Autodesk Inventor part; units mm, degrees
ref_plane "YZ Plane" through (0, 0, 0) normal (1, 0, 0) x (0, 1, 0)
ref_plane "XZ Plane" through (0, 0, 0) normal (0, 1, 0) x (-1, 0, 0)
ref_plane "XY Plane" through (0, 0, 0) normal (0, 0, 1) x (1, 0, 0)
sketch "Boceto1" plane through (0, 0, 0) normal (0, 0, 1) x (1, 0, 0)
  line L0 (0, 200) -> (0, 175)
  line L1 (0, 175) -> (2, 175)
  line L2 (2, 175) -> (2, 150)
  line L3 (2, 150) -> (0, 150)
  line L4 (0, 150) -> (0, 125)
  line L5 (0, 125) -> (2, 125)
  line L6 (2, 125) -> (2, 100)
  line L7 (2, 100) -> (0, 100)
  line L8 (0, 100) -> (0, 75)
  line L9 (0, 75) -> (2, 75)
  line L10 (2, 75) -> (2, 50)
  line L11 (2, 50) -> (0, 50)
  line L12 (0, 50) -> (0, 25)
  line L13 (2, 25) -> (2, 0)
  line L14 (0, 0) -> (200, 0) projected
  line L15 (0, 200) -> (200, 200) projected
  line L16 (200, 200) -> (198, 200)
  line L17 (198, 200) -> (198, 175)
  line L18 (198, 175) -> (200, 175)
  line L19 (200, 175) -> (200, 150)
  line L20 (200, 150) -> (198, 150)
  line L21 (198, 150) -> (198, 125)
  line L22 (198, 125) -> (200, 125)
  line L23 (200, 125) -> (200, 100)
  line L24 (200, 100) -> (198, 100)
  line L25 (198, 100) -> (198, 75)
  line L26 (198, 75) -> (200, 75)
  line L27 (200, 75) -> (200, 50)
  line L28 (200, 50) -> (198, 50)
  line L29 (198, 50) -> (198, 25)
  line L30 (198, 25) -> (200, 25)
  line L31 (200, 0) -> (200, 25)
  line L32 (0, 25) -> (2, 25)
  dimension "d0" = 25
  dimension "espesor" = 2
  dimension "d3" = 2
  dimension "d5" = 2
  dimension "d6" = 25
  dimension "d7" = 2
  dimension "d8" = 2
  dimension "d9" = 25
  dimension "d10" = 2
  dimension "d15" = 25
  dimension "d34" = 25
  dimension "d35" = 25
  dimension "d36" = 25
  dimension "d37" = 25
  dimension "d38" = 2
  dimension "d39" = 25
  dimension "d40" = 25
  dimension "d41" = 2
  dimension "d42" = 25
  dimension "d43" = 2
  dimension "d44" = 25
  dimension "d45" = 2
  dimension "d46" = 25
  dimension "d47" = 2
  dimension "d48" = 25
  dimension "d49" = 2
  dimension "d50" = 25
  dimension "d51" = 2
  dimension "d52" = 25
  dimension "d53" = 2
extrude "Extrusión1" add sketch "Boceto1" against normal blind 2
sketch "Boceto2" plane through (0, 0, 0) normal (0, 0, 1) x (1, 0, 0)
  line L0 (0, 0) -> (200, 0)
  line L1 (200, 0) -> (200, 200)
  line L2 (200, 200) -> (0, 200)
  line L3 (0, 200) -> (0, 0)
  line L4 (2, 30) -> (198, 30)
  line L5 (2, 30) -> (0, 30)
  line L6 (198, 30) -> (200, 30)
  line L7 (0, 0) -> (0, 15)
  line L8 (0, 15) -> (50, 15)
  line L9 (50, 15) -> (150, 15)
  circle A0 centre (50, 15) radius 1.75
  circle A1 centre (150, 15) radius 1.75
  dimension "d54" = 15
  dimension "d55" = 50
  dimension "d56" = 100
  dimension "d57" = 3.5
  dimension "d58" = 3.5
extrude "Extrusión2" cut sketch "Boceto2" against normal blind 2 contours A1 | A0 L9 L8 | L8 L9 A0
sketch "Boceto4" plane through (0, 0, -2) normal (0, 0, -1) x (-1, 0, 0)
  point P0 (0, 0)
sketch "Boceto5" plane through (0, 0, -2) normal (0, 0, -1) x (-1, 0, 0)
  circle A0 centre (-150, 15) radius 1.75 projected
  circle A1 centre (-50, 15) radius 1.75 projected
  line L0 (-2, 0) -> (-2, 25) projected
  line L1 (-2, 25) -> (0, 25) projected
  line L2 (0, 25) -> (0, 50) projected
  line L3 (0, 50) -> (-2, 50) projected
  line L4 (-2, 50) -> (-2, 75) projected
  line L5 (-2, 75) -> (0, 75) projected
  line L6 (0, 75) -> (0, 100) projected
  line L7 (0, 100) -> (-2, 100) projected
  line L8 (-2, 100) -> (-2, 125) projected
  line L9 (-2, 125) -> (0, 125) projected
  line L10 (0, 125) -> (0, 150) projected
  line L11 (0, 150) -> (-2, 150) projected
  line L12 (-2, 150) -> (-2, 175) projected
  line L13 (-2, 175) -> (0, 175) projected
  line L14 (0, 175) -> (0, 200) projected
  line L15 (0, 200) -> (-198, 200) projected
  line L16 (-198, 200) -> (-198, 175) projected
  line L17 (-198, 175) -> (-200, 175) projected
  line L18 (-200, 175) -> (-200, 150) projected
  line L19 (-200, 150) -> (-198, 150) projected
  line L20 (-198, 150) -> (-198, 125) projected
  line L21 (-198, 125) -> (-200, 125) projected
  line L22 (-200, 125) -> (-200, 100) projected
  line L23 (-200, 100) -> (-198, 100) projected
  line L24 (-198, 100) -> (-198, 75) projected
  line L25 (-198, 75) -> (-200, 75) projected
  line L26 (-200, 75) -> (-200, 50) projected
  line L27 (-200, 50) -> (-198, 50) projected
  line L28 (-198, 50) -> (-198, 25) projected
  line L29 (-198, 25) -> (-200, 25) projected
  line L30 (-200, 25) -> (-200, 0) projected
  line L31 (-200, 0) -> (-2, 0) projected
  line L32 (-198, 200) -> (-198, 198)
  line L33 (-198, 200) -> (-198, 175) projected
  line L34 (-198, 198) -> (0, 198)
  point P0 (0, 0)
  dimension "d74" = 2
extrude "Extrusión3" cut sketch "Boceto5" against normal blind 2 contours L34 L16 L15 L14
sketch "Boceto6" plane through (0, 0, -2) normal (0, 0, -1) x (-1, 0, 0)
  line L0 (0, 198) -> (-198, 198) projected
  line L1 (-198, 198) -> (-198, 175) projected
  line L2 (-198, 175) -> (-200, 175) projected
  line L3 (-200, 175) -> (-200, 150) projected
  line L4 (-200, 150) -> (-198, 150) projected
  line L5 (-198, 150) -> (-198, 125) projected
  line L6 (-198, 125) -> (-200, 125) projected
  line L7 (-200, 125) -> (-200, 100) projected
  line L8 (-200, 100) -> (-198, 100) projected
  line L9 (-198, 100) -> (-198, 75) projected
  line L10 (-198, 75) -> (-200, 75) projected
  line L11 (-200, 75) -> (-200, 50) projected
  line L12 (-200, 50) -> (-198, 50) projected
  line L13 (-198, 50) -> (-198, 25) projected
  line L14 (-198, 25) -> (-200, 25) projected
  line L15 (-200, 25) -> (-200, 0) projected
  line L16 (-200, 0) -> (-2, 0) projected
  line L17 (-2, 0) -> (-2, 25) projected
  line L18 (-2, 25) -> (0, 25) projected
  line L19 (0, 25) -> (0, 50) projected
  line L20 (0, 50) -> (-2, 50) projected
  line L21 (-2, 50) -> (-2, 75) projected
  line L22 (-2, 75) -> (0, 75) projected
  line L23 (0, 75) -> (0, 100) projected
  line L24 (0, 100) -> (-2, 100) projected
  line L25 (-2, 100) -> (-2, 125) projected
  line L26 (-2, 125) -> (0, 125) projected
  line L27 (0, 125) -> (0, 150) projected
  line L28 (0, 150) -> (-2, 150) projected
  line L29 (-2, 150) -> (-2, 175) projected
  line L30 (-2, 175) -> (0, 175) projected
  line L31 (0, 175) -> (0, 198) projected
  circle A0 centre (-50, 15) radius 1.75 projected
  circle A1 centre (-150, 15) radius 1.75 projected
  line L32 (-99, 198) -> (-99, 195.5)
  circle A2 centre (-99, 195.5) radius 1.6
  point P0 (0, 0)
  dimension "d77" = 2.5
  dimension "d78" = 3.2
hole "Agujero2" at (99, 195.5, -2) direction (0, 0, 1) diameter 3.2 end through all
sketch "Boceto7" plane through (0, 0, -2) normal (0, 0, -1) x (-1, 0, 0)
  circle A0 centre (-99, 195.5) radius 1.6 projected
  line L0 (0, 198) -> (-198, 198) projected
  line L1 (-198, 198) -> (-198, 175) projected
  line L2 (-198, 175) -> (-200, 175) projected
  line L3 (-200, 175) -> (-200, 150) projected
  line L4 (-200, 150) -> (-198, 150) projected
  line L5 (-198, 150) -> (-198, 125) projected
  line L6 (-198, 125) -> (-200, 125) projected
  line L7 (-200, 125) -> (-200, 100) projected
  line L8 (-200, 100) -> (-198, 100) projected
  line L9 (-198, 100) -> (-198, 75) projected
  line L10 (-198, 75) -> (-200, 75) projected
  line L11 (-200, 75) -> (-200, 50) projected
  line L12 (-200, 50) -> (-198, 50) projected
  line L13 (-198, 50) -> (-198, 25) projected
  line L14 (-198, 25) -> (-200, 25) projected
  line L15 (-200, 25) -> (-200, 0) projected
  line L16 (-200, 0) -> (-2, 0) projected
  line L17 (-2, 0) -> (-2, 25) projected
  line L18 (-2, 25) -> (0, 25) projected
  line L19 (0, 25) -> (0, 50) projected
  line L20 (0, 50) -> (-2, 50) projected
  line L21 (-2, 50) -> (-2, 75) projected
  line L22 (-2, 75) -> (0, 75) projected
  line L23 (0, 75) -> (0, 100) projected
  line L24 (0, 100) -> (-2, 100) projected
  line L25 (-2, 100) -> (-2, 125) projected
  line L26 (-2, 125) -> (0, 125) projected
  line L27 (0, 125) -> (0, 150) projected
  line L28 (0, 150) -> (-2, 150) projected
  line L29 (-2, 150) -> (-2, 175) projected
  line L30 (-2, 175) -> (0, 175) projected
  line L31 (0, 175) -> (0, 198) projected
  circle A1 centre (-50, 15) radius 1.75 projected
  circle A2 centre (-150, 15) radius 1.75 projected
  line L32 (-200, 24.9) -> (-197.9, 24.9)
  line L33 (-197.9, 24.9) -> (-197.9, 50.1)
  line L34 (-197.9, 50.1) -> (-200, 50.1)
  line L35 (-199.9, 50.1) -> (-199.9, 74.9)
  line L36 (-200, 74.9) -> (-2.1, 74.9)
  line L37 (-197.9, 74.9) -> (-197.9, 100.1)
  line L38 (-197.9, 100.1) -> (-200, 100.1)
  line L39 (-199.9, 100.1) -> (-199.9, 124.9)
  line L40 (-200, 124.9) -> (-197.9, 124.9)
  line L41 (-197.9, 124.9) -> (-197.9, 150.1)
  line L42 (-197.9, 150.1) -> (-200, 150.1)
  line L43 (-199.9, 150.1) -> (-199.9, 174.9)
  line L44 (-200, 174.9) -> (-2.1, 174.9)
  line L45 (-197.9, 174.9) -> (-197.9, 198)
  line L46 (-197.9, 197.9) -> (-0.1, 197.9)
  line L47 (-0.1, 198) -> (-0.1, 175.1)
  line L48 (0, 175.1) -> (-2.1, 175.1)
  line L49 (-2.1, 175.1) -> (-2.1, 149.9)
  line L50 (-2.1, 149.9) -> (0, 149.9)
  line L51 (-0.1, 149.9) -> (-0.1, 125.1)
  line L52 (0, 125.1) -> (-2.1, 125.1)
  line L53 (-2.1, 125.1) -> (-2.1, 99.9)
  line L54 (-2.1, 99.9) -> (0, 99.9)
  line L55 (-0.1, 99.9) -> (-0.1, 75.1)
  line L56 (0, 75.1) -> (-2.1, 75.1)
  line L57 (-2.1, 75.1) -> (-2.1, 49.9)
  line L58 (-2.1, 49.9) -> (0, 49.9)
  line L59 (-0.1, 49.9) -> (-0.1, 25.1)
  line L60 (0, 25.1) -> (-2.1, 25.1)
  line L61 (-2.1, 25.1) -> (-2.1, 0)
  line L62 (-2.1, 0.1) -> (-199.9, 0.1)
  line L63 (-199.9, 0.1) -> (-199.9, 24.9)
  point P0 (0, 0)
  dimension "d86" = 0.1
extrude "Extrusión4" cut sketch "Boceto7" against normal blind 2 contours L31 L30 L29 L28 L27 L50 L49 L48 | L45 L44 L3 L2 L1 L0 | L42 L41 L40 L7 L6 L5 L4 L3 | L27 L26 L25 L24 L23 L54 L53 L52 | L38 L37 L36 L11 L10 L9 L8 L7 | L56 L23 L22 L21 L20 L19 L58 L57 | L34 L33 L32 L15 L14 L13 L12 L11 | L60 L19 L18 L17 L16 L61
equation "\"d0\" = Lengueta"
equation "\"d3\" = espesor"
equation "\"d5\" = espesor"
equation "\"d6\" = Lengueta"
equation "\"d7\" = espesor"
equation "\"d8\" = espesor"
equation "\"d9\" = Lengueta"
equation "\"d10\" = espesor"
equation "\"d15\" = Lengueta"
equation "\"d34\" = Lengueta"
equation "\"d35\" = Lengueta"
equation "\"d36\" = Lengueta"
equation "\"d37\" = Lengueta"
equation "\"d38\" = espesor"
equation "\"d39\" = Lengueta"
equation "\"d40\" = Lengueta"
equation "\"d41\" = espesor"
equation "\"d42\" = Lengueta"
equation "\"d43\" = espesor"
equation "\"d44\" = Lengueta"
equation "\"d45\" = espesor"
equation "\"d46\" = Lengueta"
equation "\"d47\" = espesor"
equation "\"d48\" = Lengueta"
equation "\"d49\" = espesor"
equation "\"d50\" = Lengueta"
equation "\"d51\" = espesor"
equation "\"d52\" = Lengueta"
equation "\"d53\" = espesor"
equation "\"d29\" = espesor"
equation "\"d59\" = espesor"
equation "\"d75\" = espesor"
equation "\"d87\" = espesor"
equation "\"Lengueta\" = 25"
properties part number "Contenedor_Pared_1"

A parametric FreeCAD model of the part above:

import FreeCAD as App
import Part
import Sketcher

doc = App.newDocument("Part")
body = doc.addObject("PartDesign::Body", "Body")

# Sketch on XY plane
sketch1 = doc.addObject("Sketcher::SketchObject", "Sketch")
body.addObject(sketch1)
sketch1.AttachmentSupport = (doc.XY_Plane, [""])
sketch1.MapMode = "FlatFace"
sketch1.addGeometry(Part.LineSegment(App.Vector(198, 200, 0), App.Vector(0, 200, 0)), False)
sketch1.addGeometry(Part.LineSegment(App.Vector(0, 200, 0), App.Vector(0, 175, 0)), False)
sketch1.addGeometry(Part.LineSegment(App.Vector(0, 175, 0), App.Vector(2, 175, 0)), False)
sketch1.addGeometry(Part.LineSegment(App.Vector(2, 175, 0), App.Vector(2, 150, 0)), False)
sketch1.addGeometry(Part.LineSegment(App.Vector(2, 150, 0), App.Vector(0, 150, 0)), False)
sketch1.addGeometry(Part.LineSegment(App.Vector(0, 150, 0), App.Vector(0, 125, 0)), False)
sketch1.addGeometry(Part.LineSegment(App.Vector(0, 125, 0), App.Vector(2, 125, 0)), False)
sketch1.addGeometry(Part.LineSegment(App.Vector(2, 125, 0), App.Vector(2, 100, 0)), False)
sketch1.addGeometry(Part.LineSegment(App.Vector(2, 100, 0), App.Vector(0, 100, 0)), False)
sketch1.addGeometry(Part.LineSegment(App.Vector(0, 100, 0), App.Vector(0, 75, 0)), False)
sketch1.addGeometry(Part.LineSegment(App.Vector(0, 75, 0), App.Vector(2, 75, 0)), False)
sketch1.addGeometry(Part.LineSegment(App.Vector(2, 75, 0), App.Vector(2, 50, 0)), False)
sketch1.addGeometry(Part.LineSegment(App.Vector(2, 50, 0), App.Vector(0, 50, 0)), False)
sketch1.addGeometry(Part.LineSegment(App.Vector(0, 50, 0), App.Vector(0, 25, 0)), False)
sketch1.addGeometry(Part.LineSegment(App.Vector(0, 25, 0), App.Vector(2, 25, 0)), False)
sketch1.addGeometry(Part.LineSegment(App.Vector(2, 25, 0), App.Vector(2, 0, 0)), False)
sketch1.addGeometry(Part.LineSegment(App.Vector(2, 0, 0), App.Vector(200, 0, 0)), False)
sketch1.addGeometry(Part.LineSegment(App.Vector(200, 0, 0), App.Vector(200, 25, 0)), False)
sketch1.addGeometry(Part.LineSegment(App.Vector(200, 25, 0), App.Vector(198, 25, 0)), False)
sketch1.addGeometry(Part.LineSegment(App.Vector(198, 25, 0), App.Vector(198, 50, 0)), False)
sketch1.addGeometry(Part.LineSegment(App.Vector(198, 50, 0), App.Vector(200, 50, 0)), False)
sketch1.addGeometry(Part.LineSegment(App.Vector(200, 50, 0), App.Vector(200, 75, 0)), False)
sketch1.addGeometry(Part.LineSegment(App.Vector(200, 75, 0), App.Vector(198, 75, 0)), False)
sketch1.addGeometry(Part.LineSegment(App.Vector(198, 75, 0), App.Vector(198, 100, 0)), False)
sketch1.addGeometry(Part.LineSegment(App.Vector(198, 100, 0), App.Vector(200, 100, 0)), False)
sketch1.addGeometry(Part.LineSegment(App.Vector(200, 100, 0), App.Vector(200, 125, 0)), False)
sketch1.addGeometry(Part.LineSegment(App.Vector(200, 125, 0), App.Vector(198, 125, 0)), False)
sketch1.addGeometry(Part.LineSegment(App.Vector(198, 125, 0), App.Vector(198, 150, 0)), False)
sketch1.addGeometry(Part.LineSegment(App.Vector(198, 150, 0), App.Vector(200, 150, 0)), False)
sketch1.addGeometry(Part.LineSegment(App.Vector(200, 150, 0), App.Vector(200, 175, 0)), False)
sketch1.addGeometry(Part.LineSegment(App.Vector(200, 175, 0), App.Vector(198, 175, 0)), False)
sketch1.addGeometry(Part.LineSegment(App.Vector(198, 175, 0), App.Vector(198, 200, 0)), False)
sketch1.addConstraint(Sketcher.Constraint("Coincident", 0, 2, 1, 1))
sketch1.addConstraint(Sketcher.Constraint("Coincident", 1, 2, 2, 1))
sketch1.addConstraint(Sketcher.Constraint("Coincident", 2, 2, 3, 1))
sketch1.addConstraint(Sketcher.Constraint("Coincident", 3, 2, 4, 1))
sketch1.addConstraint(Sketcher.Constraint("Coincident", 4, 2, 5, 1))
sketch1.addConstraint(Sketcher.Constraint("Coincident", 5, 2, 6, 1))
sketch1.addConstraint(Sketcher.Constraint("Coincident", 6, 2, 7, 1))
sketch1.addConstraint(Sketcher.Constraint("Coincident", 7, 2, 8, 1))
sketch1.addConstraint(Sketcher.Constraint("Coincident", 8, 2, 9, 1))
sketch1.addConstraint(Sketcher.Constraint("Coincident", 9, 2, 10, 1))
sketch1.addConstraint(Sketcher.Constraint("Coincident", 10, 2, 11, 1))
sketch1.addConstraint(Sketcher.Constraint("Coincident", 11, 2, 12, 1))
sketch1.addConstraint(Sketcher.Constraint("Coincident", 12, 2, 13, 1))
sketch1.addConstraint(Sketcher.Constraint("Coincident", 13, 2, 14, 1))
sketch1.addConstraint(Sketcher.Constraint("Coincident", 14, 2, 15, 1))
sketch1.addConstraint(Sketcher.Constraint("Coincident", 15, 2, 16, 1))
sketch1.addConstraint(Sketcher.Constraint("Coincident", 16, 2, 17, 1))
sketch1.addConstraint(Sketcher.Constraint("Coincident", 17, 2, 18, 1))
sketch1.addConstraint(Sketcher.Constraint("Coincident", 18, 2, 19, 1))
sketch1.addConstraint(Sketcher.Constraint("Coincident", 19, 2, 20, 1))
sketch1.addConstraint(Sketcher.Constraint("Coincident", 20, 2, 21, 1))
sketch1.addConstraint(Sketcher.Constraint("Coincident", 21, 2, 22, 1))
sketch1.addConstraint(Sketcher.Constraint("Coincident", 22, 2, 23, 1))
sketch1.addConstraint(Sketcher.Constraint("Coincident", 23, 2, 24, 1))
sketch1.addConstraint(Sketcher.Constraint("Coincident", 24, 2, 25, 1))
sketch1.addConstraint(Sketcher.Constraint("Coincident", 25, 2, 26, 1))
sketch1.addConstraint(Sketcher.Constraint("Coincident", 26, 2, 27, 1))
sketch1.addConstraint(Sketcher.Constraint("Coincident", 27, 2, 28, 1))
sketch1.addConstraint(Sketcher.Constraint("Coincident", 28, 2, 29, 1))
sketch1.addConstraint(Sketcher.Constraint("Coincident", 29, 2, 30, 1))
sketch1.addConstraint(Sketcher.Constraint("Coincident", 30, 2, 31, 1))
sketch1.addConstraint(Sketcher.Constraint("Coincident", 31, 2, 0, 1))
sketch1.addConstraint(Sketcher.Constraint("Horizontal", 0))
sketch1.addConstraint(Sketcher.Constraint("Vertical", 1))
sketch1.addConstraint(Sketcher.Constraint("Horizontal", 2))
sketch1.addConstraint(Sketcher.Constraint("Vertical", 3))
sketch1.addConstraint(Sketcher.Constraint("Horizontal", 4))
sketch1.addConstraint(Sketcher.Constraint("Vertical", 5))
sketch1.addConstraint(Sketcher.Constraint("Horizontal", 6))
sketch1.addConstraint(Sketcher.Constraint("Vertical", 7))
sketch1.addConstraint(Sketcher.Constraint("Horizontal", 8))
sketch1.addConstraint(Sketcher.Constraint("Vertical", 9))
sketch1.addConstraint(Sketcher.Constraint("Horizontal", 10))
sketch1.addConstraint(Sketcher.Constraint("Vertical", 11))
sketch1.addConstraint(Sketcher.Constraint("Horizontal", 12))
sketch1.addConstraint(Sketcher.Constraint("Vertical", 13))
sketch1.addConstraint(Sketcher.Constraint("Horizontal", 14))
sketch1.addConstraint(Sketcher.Constraint("Vertical", 15))
sketch1.addConstraint(Sketcher.Constraint("Horizontal", 16))
sketch1.addConstraint(Sketcher.Constraint("Vertical", 17))
sketch1.addConstraint(Sketcher.Constraint("Horizontal", 18))
sketch1.addConstraint(Sketcher.Constraint("Vertical", 19))
sketch1.addConstraint(Sketcher.Constraint("Horizontal", 20))
sketch1.addConstraint(Sketcher.Constraint("Vertical", 21))
sketch1.addConstraint(Sketcher.Constraint("Horizontal", 22))
sketch1.addConstraint(Sketcher.Constraint("Vertical", 23))
sketch1.addConstraint(Sketcher.Constraint("Horizontal", 24))
sketch1.addConstraint(Sketcher.Constraint("Vertical", 25))
sketch1.addConstraint(Sketcher.Constraint("Horizontal", 26))
sketch1.addConstraint(Sketcher.Constraint("Vertical", 27))
sketch1.addConstraint(Sketcher.Constraint("Horizontal", 28))
sketch1.addConstraint(Sketcher.Constraint("Vertical", 29))
sketch1.addConstraint(Sketcher.Constraint("Horizontal", 30))
sketch1.addConstraint(Sketcher.Constraint("Vertical", 31))
sketch1.addConstraint(Sketcher.Constraint("PointOnObject", 0, 2, -2))
sketch1.addConstraint(Sketcher.Constraint("PointOnObject", 4, 2, -2))
sketch1.addConstraint(Sketcher.Constraint("PointOnObject", 8, 2, -2))
sketch1.addConstraint(Sketcher.Constraint("PointOnObject", 12, 2, -2))
sketch1.addConstraint(Sketcher.Constraint("PointOnObject", 15, 2, -1))
sketch1.addConstraint(Sketcher.Constraint("Horizontal", 14, 2, 17, 2))
sketch1.addConstraint(Sketcher.Constraint("Horizontal", 12, 2, 19, 2))
sketch1.addConstraint(Sketcher.Constraint("Horizontal", 10, 2, 21, 2))
sketch1.addConstraint(Sketcher.Constraint("Horizontal", 8, 2, 23, 2))
sketch1.addConstraint(Sketcher.Constraint("Horizontal", 6, 2, 25, 2))
sketch1.addConstraint(Sketcher.Constraint("Horizontal", 4, 2, 27, 2))
sketch1.addConstraint(Sketcher.Constraint("Horizontal", 2, 2, 29, 2))
sketch1.addConstraint(Sketcher.Constraint("Vertical", 3, 2, 6, 2))
sketch1.addConstraint(Sketcher.Constraint("Vertical", 7, 2, 10, 2))
sketch1.addConstraint(Sketcher.Constraint("Vertical", 11, 2, 14, 2))
sketch1.addConstraint(Sketcher.Constraint("Vertical", 17, 2, 20, 2))
sketch1.addConstraint(Sketcher.Constraint("Vertical", 19, 2, 22, 2))
sketch1.addConstraint(Sketcher.Constraint("Vertical", 21, 2, 24, 2))
sketch1.addConstraint(Sketcher.Constraint("Vertical", 23, 2, 26, 2))
sketch1.addConstraint(Sketcher.Constraint("Vertical", 25, 2, 28, 2))
sketch1.addConstraint(Sketcher.Constraint("Vertical", 27, 2, 30, 2))
sketch1.addConstraint(Sketcher.Constraint("Equal", 0, 16))
sketch1.addConstraint(Sketcher.Constraint("Equal", 1, 3))
sketch1.addConstraint(Sketcher.Constraint("Equal", 3, 5))
sketch1.addConstraint(Sketcher.Constraint("Equal", 5, 7))
sketch1.addConstraint(Sketcher.Constraint("Equal", 7, 9))
sketch1.addConstraint(Sketcher.Constraint("Equal", 9, 11))
sketch1.addConstraint(Sketcher.Constraint("Equal", 11, 13))
sketch1.addConstraint(Sketcher.Constraint("Equal", 13, 15))
sketch1.addConstraint(Sketcher.Constraint("DistanceX", 2, 1, 2, 2, 2.0))
sketch1.addConstraint(Sketcher.Constraint("DistanceY", 1, 2, 1, 1, 25.0))
sketch1.addConstraint(Sketcher.Constraint("DistanceX", 0, 2, 0, 1, 198.0))
pad1 = doc.addObject("PartDesign::Pad", "Pad")
body.addObject(pad1)
pad1.Profile = sketch1
pad1.Length = 2
pad1.Reversed = True

# Sketch on XY plane
sketch2 = doc.addObject("Sketcher::SketchObject", "Sketch001")
body.addObject(sketch2)
sketch2.AttachmentSupport = (doc.XY_Plane, [""])
sketch2.MapMode = "FlatFace"
sketch2.addGeometry(Part.Circle(App.Vector(150, 15, 0), App.Vector(0, 0, 1), 1.75), False)
sketch2.addGeometry(Part.Circle(App.Vector(50, 15, 0), App.Vector(0, 0, 1), 1.75), False)
sketch2.addConstraint(Sketcher.Constraint("Equal", 0, 1))
sketch2.addConstraint(Sketcher.Constraint("Horizontal", 0, 3, 1, 3))
sketch2.addConstraint(Sketcher.Constraint("Diameter", 0, 3.5))
sketch2.addConstraint(Sketcher.Constraint("DistanceY", -1, 1, 0, 3, 15.0))
sketch2.addConstraint(Sketcher.Constraint("DistanceX", -1, 1, 1, 3, 50.0))
sketch2.addConstraint(Sketcher.Constraint("DistanceX", 1, 3, 0, 3, 100.0))
pocket1 = doc.addObject("PartDesign::Pocket", "Pocket")
body.addObject(pocket1)
pocket1.Profile = sketch2
pocket1.Length = 2

# Sketch on XY plane
sketch3 = doc.addObject("Sketcher::SketchObject", "Sketch002")
body.addObject(sketch3)
sketch3.AttachmentSupport = (doc.XY_Plane, [""])
sketch3.MapMode = "FlatFace"
sketch3.AttachmentOffset = App.Placement(App.Vector(0, 0, -2), App.Rotation())
sketch3.addGeometry(Part.LineSegment(App.Vector(198, 198, 0), App.Vector(0, 198, 0)), False)
sketch3.addGeometry(Part.LineSegment(App.Vector(0, 198, 0), App.Vector(0, 200, 0)), False)
sketch3.addGeometry(Part.LineSegment(App.Vector(0, 200, 0), App.Vector(198, 200, 0)), False)
sketch3.addGeometry(Part.LineSegment(App.Vector(198, 200, 0), App.Vector(198, 198, 0)), False)
sketch3.addConstraint(Sketcher.Constraint("Coincident", 0, 2, 1, 1))
sketch3.addConstraint(Sketcher.Constraint("Coincident", 1, 2, 2, 1))
sketch3.addConstraint(Sketcher.Constraint("Coincident", 2, 2, 3, 1))
sketch3.addConstraint(Sketcher.Constraint("Coincident", 3, 2, 0, 1))
sketch3.addConstraint(Sketcher.Constraint("Horizontal", 0))
sketch3.addConstraint(Sketcher.Constraint("Vertical", 1))
sketch3.addConstraint(Sketcher.Constraint("Horizontal", 2))
sketch3.addConstraint(Sketcher.Constraint("Vertical", 3))
sketch3.addConstraint(Sketcher.Constraint("PointOnObject", 0, 2, -2))
sketch3.addConstraint(Sketcher.Constraint("DistanceY", 1, 1, 1, 2, 2.0))
sketch3.addConstraint(Sketcher.Constraint("DistanceX", 0, 2, 0, 1, 198.0))
sketch3.addConstraint(Sketcher.Constraint("DistanceY", -1, 1, 0, 2, 198.0))
pocket2 = doc.addObject("PartDesign::Pocket", "Pocket001")
body.addObject(pocket2)
pocket2.Profile = sketch3
pocket2.Length = 2
pocket2.Reversed = True

# Sketch on XY plane
sketch4 = doc.addObject("Sketcher::SketchObject", "Sketch003")
body.addObject(sketch4)
sketch4.AttachmentSupport = (doc.XY_Plane, [""])
sketch4.MapMode = "FlatFace"
sketch4.AttachmentOffset = App.Placement(App.Vector(0, 0, -2), App.Rotation())
sketch4.addGeometry(Part.Circle(App.Vector(99, 195.5, 0), App.Vector(0, 0, 1), 1.6), False)
sketch4.addConstraint(Sketcher.Constraint("Diameter", 0, 3.2))
sketch4.addConstraint(Sketcher.Constraint("DistanceX", -1, 1, 0, 3, 99.0))
sketch4.addConstraint(Sketcher.Constraint("DistanceY", -1, 1, 0, 3, 195.5))
doc.recompute()
hole = doc.addObject("PartDesign::Hole", "Hole")
body.addObject(hole)
hole.Profile = sketch4
hole.ThreadType = "None"
hole.Diameter = 3.2
hole.DepthType = "ThroughAll"
hole.Reversed = True

# Sketch on XY plane
sketch5 = doc.addObject("Sketcher::SketchObject", "Sketch004")
body.addObject(sketch5)
sketch5.AttachmentSupport = (doc.XY_Plane, [""])
sketch5.MapMode = "FlatFace"
sketch5.AttachmentOffset = App.Placement(App.Vector(0, 0, -2), App.Rotation())
sketch5.addGeometry(Part.LineSegment(App.Vector(0, 175, 0), App.Vector(0, 175.1, 0)), False)
sketch5.addGeometry(Part.LineSegment(App.Vector(0, 175.1, 0), App.Vector(2.1, 175.1, 0)), False)
sketch5.addGeometry(Part.LineSegment(App.Vector(2.1, 175.1, 0), App.Vector(2.1, 149.9, 0)), False)
sketch5.addGeometry(Part.LineSegment(App.Vector(2.1, 149.9, 0), App.Vector(0, 149.9, 0)), False)
sketch5.addGeometry(Part.LineSegment(App.Vector(0, 149.9, 0), App.Vector(0, 150, 0)), False)
sketch5.addGeometry(Part.LineSegment(App.Vector(0, 150, 0), App.Vector(2, 150, 0)), False)
sketch5.addGeometry(Part.LineSegment(App.Vector(2, 150, 0), App.Vector(2, 175, 0)), False)
sketch5.addGeometry(Part.LineSegment(App.Vector(2, 175, 0), App.Vector(0, 175, 0)), False)
sketch5.addGeometry(Part.LineSegment(App.Vector(197.9, 174.9, 0), App.Vector(197.9, 198, 0)), False)
sketch5.addGeometry(Part.LineSegment(App.Vector(197.9, 198, 0), App.Vector(198, 198, 0)), False)
sketch5.addGeometry(Part.LineSegment(App.Vector(198, 198, 0), App.Vector(198, 175, 0)), False)
sketch5.addGeometry(Part.LineSegment(App.Vector(198, 175, 0), App.Vector(200, 175, 0)), False)
sketch5.addGeometry(Part.LineSegment(App.Vector(200, 175, 0), App.Vector(200, 174.9, 0)), False)
sketch5.addGeometry(Part.LineSegment(App.Vector(200, 174.9, 0), App.Vector(197.9, 174.9, 0)), False)
sketch5.addGeometry(Part.LineSegment(App.Vector(197.9, 150.1, 0), App.Vector(200, 150.1, 0)), False)
sketch5.addGeometry(Part.LineSegment(App.Vector(200, 150.1, 0), App.Vector(200, 150, 0)), False)
sketch5.addGeometry(Part.LineSegment(App.Vector(200, 150, 0), App.Vector(198, 150, 0)), False)
sketch5.addGeometry(Part.LineSegment(App.Vector(198, 150, 0), App.Vector(198, 125, 0)), False)
sketch5.addGeometry(Part.LineSegment(App.Vector(198, 125, 0), App.Vector(200, 125, 0)), False)
sketch5.addGeometry(Part.LineSegment(App.Vector(200, 125, 0), App.Vector(200, 124.9, 0)), False)
sketch5.addGeometry(Part.LineSegment(App.Vector(200, 124.9, 0), App.Vector(197.9, 124.9, 0)), False)
sketch5.addGeometry(Part.LineSegment(App.Vector(197.9, 124.9, 0), App.Vector(197.9, 150.1, 0)), False)
sketch5.addGeometry(Part.LineSegment(App.Vector(0, 125, 0), App.Vector(0, 125.1, 0)), False)
sketch5.addGeometry(Part.LineSegment(App.Vector(0, 125.1, 0), App.Vector(2.1, 125.1, 0)), False)
sketch5.addGeometry(Part.LineSegment(App.Vector(2.1, 125.1, 0), App.Vector(2.1, 99.9, 0)), False)
sketch5.addGeometry(Part.LineSegment(App.Vector(2.1, 99.9, 0), App.Vector(0, 99.9, 0)), False)
sketch5.addGeometry(Part.LineSegment(App.Vector(0, 99.9, 0), App.Vector(0, 100, 0)), False)
sketch5.addGeometry(Part.LineSegment(App.Vector(0, 100, 0), App.Vector(2, 100, 0)), False)
sketch5.addGeometry(Part.LineSegment(App.Vector(2, 100, 0), App.Vector(2, 125, 0)), False)
sketch5.addGeometry(Part.LineSegment(App.Vector(2, 125, 0), App.Vector(0, 125, 0)), False)
sketch5.addGeometry(Part.LineSegment(App.Vector(197.9, 100.1, 0), App.Vector(200, 100.1, 0)), False)
sketch5.addGeometry(Part.LineSegment(App.Vector(200, 100.1, 0), App.Vector(200, 100, 0)), False)
sketch5.addGeometry(Part.LineSegment(App.Vector(200, 100, 0), App.Vector(198, 100, 0)), False)
sketch5.addGeometry(Part.LineSegment(App.Vector(198, 100, 0), App.Vector(198, 75, 0)), False)
sketch5.addGeometry(Part.LineSegment(App.Vector(198, 75, 0), App.Vector(200, 75, 0)), False)
sketch5.addGeometry(Part.LineSegment(App.Vector(200, 75, 0), App.Vector(200, 74.9, 0)), False)
sketch5.addGeometry(Part.LineSegment(App.Vector(200, 74.9, 0), App.Vector(197.9, 74.9, 0)), False)
sketch5.addGeometry(Part.LineSegment(App.Vector(197.9, 74.9, 0), App.Vector(197.9, 100.1, 0)), False)
sketch5.addGeometry(Part.LineSegment(App.Vector(0, 75.1, 0), App.Vector(2.1, 75.1, 0)), False)
sketch5.addGeometry(Part.LineSegment(App.Vector(2.1, 75.1, 0), App.Vector(2.1, 49.9, 0)), False)
sketch5.addGeometry(Part.LineSegment(App.Vector(2.1, 49.9, 0), App.Vector(0, 49.9, 0)), False)
sketch5.addGeometry(Part.LineSegment(App.Vector(0, 49.9, 0), App.Vector(0, 50, 0)), False)
sketch5.addGeometry(Part.LineSegment(App.Vector(0, 50, 0), App.Vector(2, 50, 0)), False)
sketch5.addGeometry(Part.LineSegment(App.Vector(2, 50, 0), App.Vector(2, 75, 0)), False)
sketch5.addGeometry(Part.LineSegment(App.Vector(2, 75, 0), App.Vector(0, 75, 0)), False)
sketch5.addGeometry(Part.LineSegment(App.Vector(0, 75, 0), App.Vector(0, 75.1, 0)), False)
sketch5.addGeometry(Part.LineSegment(App.Vector(197.9, 50.1, 0), App.Vector(200, 50.1, 0)), False)
sketch5.addGeometry(Part.LineSegment(App.Vector(200, 50.1, 0), App.Vector(200, 50, 0)), False)
sketch5.addGeometry(Part.LineSegment(App.Vector(200, 50, 0), App.Vector(198, 50, 0)), False)
sketch5.addGeometry(Part.LineSegment(App.Vector(198, 50, 0), App.Vector(198, 25, 0)), False)
sketch5.addGeometry(Part.LineSegment(App.Vector(198, 25, 0), App.Vector(200, 25, 0)), False)
sketch5.addGeometry(Part.LineSegment(App.Vector(200, 25, 0), App.Vector(200, 24.9, 0)), False)
sketch5.addGeometry(Part.LineSegment(App.Vector(200, 24.9, 0), App.Vector(197.9, 24.9, 0)), False)
sketch5.addGeometry(Part.LineSegment(App.Vector(197.9, 24.9, 0), App.Vector(197.9, 50.1, 0)), False)
sketch5.addGeometry(Part.LineSegment(App.Vector(0, 25.1, 0), App.Vector(2.1, 25.1, 0)), False)
sketch5.addGeometry(Part.LineSegment(App.Vector(2.1, 25.1, 0), App.Vector(2.1, 0, 0)), False)
sketch5.addGeometry(Part.LineSegment(App.Vector(2.1, 0, 0), App.Vector(2, 0, 0)), False)
sketch5.addGeometry(Part.LineSegment(App.Vector(2, 0, 0), App.Vector(2, 25, 0)), False)
sketch5.addGeometry(Part.LineSegment(App.Vector(2, 25, 0), App.Vector(0, 25, 0)), False)
sketch5.addGeometry(Part.LineSegment(App.Vector(0, 25, 0), App.Vector(0, 25.1, 0)), False)
sketch5.addConstraint(Sketcher.Constraint("Coincident", 0, 2, 1, 1))
sketch5.addConstraint(Sketcher.Constraint("Coincident", 1, 2, 2, 1))
sketch5.addConstraint(Sketcher.Constraint("Coincident", 2, 2, 3, 1))
sketch5.addConstraint(Sketcher.Constraint("Coincident", 3, 2, 4, 1))
sketch5.addConstraint(Sketcher.Constraint("Coincident", 4, 2, 5, 1))
sketch5.addConstraint(Sketcher.Constraint("Coincident", 5, 2, 6, 1))
sketch5.addConstraint(Sketcher.Constraint("Coincident", 6, 2, 7, 1))
sketch5.addConstraint(Sketcher.Constraint("Coincident", 7, 2, 0, 1))
sketch5.addConstraint(Sketcher.Constraint("Coincident", 8, 2, 9, 1))
sketch5.addConstraint(Sketcher.Constraint("Coincident", 9, 2, 10, 1))
sketch5.addConstraint(Sketcher.Constraint("Coincident", 10, 2, 11, 1))
sketch5.addConstraint(Sketcher.Constraint("Coincident", 11, 2, 12, 1))
sketch5.addConstraint(Sketcher.Constraint("Coincident", 12, 2, 13, 1))
sketch5.addConstraint(Sketcher.Constraint("Coincident", 13, 2, 8, 1))
sketch5.addConstraint(Sketcher.Constraint("Coincident", 14, 2, 15, 1))
sketch5.addConstraint(Sketcher.Constraint("Coincident", 15, 2, 16, 1))
sketch5.addConstraint(Sketcher.Constraint("Coincident", 16, 2, 17, 1))
sketch5.addConstraint(Sketcher.Constraint("Coincident", 17, 2, 18, 1))
sketch5.addConstraint(Sketcher.Constraint("Coincident", 18, 2, 19, 1))
sketch5.addConstraint(Sketcher.Constraint("Coincident", 19, 2, 20, 1))
sketch5.addConstraint(Sketcher.Constraint("Coincident", 20, 2, 21, 1))
sketch5.addConstraint(Sketcher.Constraint("Coincident", 21, 2, 14, 1))
sketch5.addConstraint(Sketcher.Constraint("Coincident", 22, 2, 23, 1))
sketch5.addConstraint(Sketcher.Constraint("Coincident", 23, 2, 24, 1))
sketch5.addConstraint(Sketcher.Constraint("Coincident", 24, 2, 25, 1))
sketch5.addConstraint(Sketcher.Constraint("Coincident", 25, 2, 26, 1))
sketch5.addConstraint(Sketcher.Constraint("Coincident", 26, 2, 27, 1))
sketch5.addConstraint(Sketcher.Constraint("Coincident", 27, 2, 28, 1))
sketch5.addConstraint(Sketcher.Constraint("Coincident", 28, 2, 29, 1))
sketch5.addConstraint(Sketcher.Constraint("Coincident", 29, 2, 22, 1))
sketch5.addConstraint(Sketcher.Constraint("Coincident", 30, 2, 31, 1))
sketch5.addConstraint(Sketcher.Constraint("Coincident", 31, 2, 32, 1))
sketch5.addConstraint(Sketcher.Constraint("Coincident", 32, 2, 33, 1))
sketch5.addConstraint(Sketcher.Constraint("Coincident", 33, 2, 34, 1))
sketch5.addConstraint(Sketcher.Constraint("Coincident", 34, 2, 35, 1))
sketch5.addConstraint(Sketcher.Constraint("Coincident", 35, 2, 36, 1))
sketch5.addConstraint(Sketcher.Constraint("Coincident", 36, 2, 37, 1))
sketch5.addConstraint(Sketcher.Constraint("Coincident", 37, 2, 30, 1))
sketch5.addConstraint(Sketcher.Constraint("Coincident", 38, 2, 39, 1))
sketch5.addConstraint(Sketcher.Constraint("Coincident", 39, 2, 40, 1))
sketch5.addConstraint(Sketcher.Constraint("Coincident", 40, 2, 41, 1))
sketch5.addConstraint(Sketcher.Constraint("Coincident", 41, 2, 42, 1))
sketch5.addConstraint(Sketcher.Constraint("Coincident", 42, 2, 43, 1))
sketch5.addConstraint(Sketcher.Constraint("Coincident", 43, 2, 44, 1))
sketch5.addConstraint(Sketcher.Constraint("Coincident", 44, 2, 45, 1))
sketch5.addConstraint(Sketcher.Constraint("Coincident", 45, 2, 38, 1))
sketch5.addConstraint(Sketcher.Constraint("Coincident", 46, 2, 47, 1))
sketch5.addConstraint(Sketcher.Constraint("Coincident", 47, 2, 48, 1))
sketch5.addConstraint(Sketcher.Constraint("Coincident", 48, 2, 49, 1))
sketch5.addConstraint(Sketcher.Constraint("Coincident", 49, 2, 50, 1))
sketch5.addConstraint(Sketcher.Constraint("Coincident", 50, 2, 51, 1))
sketch5.addConstraint(Sketcher.Constraint("Coincident", 51, 2, 52, 1))
sketch5.addConstraint(Sketcher.Constraint("Coincident", 52, 2, 53, 1))
sketch5.addConstraint(Sketcher.Constraint("Coincident", 53, 2, 46, 1))
sketch5.addConstraint(Sketcher.Constraint("Coincident", 54, 2, 55, 1))
sketch5.addConstraint(Sketcher.Constraint("Coincident", 55, 2, 56, 1))
sketch5.addConstraint(Sketcher.Constraint("Coincident", 56, 2, 57, 1))
sketch5.addConstraint(Sketcher.Constraint("Coincident", 57, 2, 58, 1))
sketch5.addConstraint(Sketcher.Constraint("Coincident", 58, 2, 59, 1))
sketch5.addConstraint(Sketcher.Constraint("Coincident", 59, 2, 54, 1))
sketch5.addConstraint(Sketcher.Constraint("Vertical", 0))
sketch5.addConstraint(Sketcher.Constraint("Horizontal", 1))
sketch5.addConstraint(Sketcher.Constraint("Vertical", 2))
sketch5.addConstraint(Sketcher.Constraint("Horizontal", 3))
sketch5.addConstraint(Sketcher.Constraint("Vertical", 4))
sketch5.addConstraint(Sketcher.Constraint("Horizontal", 5))
sketch5.addConstraint(Sketcher.Constraint("Vertical", 6))
sketch5.addConstraint(Sketcher.Constraint("Horizontal", 7))
sketch5.addConstraint(Sketcher.Constraint("Vertical", 8))
sketch5.addConstraint(Sketcher.Constraint("Horizontal", 9))
sketch5.addConstraint(Sketcher.Constraint("Vertical", 10))
sketch5.addConstraint(Sketcher.Constraint("Horizontal", 11))
sketch5.addConstraint(Sketcher.Constraint("Vertical", 12))
sketch5.addConstraint(Sketcher.Constraint("Horizontal", 13))
sketch5.addConstraint(Sketcher.Constraint("Horizontal", 14))
sketch5.addConstraint(Sketcher.Constraint("Vertical", 15))
sketch5.addConstraint(Sketcher.Constraint("Horizontal", 16))
sketch5.addConstraint(Sketcher.Constraint("Vertical", 17))
sketch5.addConstraint(Sketcher.Constraint("Horizontal", 18))
sketch5.addConstraint(Sketcher.Constraint("Vertical", 19))
sketch5.addConstraint(Sketcher.Constraint("Horizontal", 20))
sketch5.addConstraint(Sketcher.Constraint("Vertical", 21))
sketch5.addConstraint(Sketcher.Constraint("Vertical", 22))
sketch5.addConstraint(Sketcher.Constraint("Horizontal", 23))
sketch5.addConstraint(Sketcher.Constraint("Vertical", 24))
sketch5.addConstraint(Sketcher.Constraint("Horizontal", 25))
sketch5.addConstraint(Sketcher.Constraint("Vertical", 26))
sketch5.addConstraint(Sketcher.Constraint("Horizontal", 27))
sketch5.addConstraint(Sketcher.Constraint("Vertical", 28))
sketch5.addConstraint(Sketcher.Constraint("Horizontal", 29))
sketch5.addConstraint(Sketcher.Constraint("Horizontal", 30))
sketch5.addConstraint(Sketcher.Constraint("Vertical", 31))
sketch5.addConstraint(Sketcher.Constraint("Horizontal", 32))
sketch5.addConstraint(Sketcher.Constraint("Vertical", 33))
sketch5.addConstraint(Sketcher.Constraint("Horizontal", 34))
sketch5.addConstraint(Sketcher.Constraint("Vertical", 35))
sketch5.addConstraint(Sketcher.Constraint("Horizontal", 36))
sketch5.addConstraint(Sketcher.Constraint("Vertical", 37))
sketch5.addConstraint(Sketcher.Constraint("Horizontal", 38))
sketch5.addConstraint(Sketcher.Constraint("Vertical", 39))
sketch5.addConstraint(Sketcher.Constraint("Horizontal", 40))
sketch5.addConstraint(Sketcher.Constraint("Vertical", 41))
sketch5.addConstraint(Sketcher.Constraint("Horizontal", 42))
sketch5.addConstraint(Sketcher.Constraint("Vertical", 43))
sketch5.addConstraint(Sketcher.Constraint("Horizontal", 44))
sketch5.addConstraint(Sketcher.Constraint("Vertical", 45))
sketch5.addConstraint(Sketcher.Constraint("Horizontal", 46))
sketch5.addConstraint(Sketcher.Constraint("Vertical", 47))
sketch5.addConstraint(Sketcher.Constraint("Horizontal", 48))
sketch5.addConstraint(Sketcher.Constraint("Vertical", 49))
sketch5.addConstraint(Sketcher.Constraint("Horizontal", 50))
sketch5.addConstraint(Sketcher.Constraint("Vertical", 51))
sketch5.addConstraint(Sketcher.Constraint("Horizontal", 52))
sketch5.addConstraint(Sketcher.Constraint("Vertical", 53))
sketch5.addConstraint(Sketcher.Constraint("Horizontal", 54))
sketch5.addConstraint(Sketcher.Constraint("Vertical", 55))
sketch5.addConstraint(Sketcher.Constraint("Horizontal", 56))
sketch5.addConstraint(Sketcher.Constraint("Vertical", 57))
sketch5.addConstraint(Sketcher.Constraint("Horizontal", 58))
sketch5.addConstraint(Sketcher.Constraint("Vertical", 59))
sketch5.addConstraint(Sketcher.Constraint("PointOnObject", 0, 2, -2))
sketch5.addConstraint(Sketcher.Constraint("PointOnObject", 3, 2, -2))
sketch5.addConstraint(Sketcher.Constraint("PointOnObject", 22, 2, -2))
sketch5.addConstraint(Sketcher.Constraint("PointOnObject", 25, 2, -2))
sketch5.addConstraint(Sketcher.Constraint("PointOnObject", 40, 2, -2))
sketch5.addConstraint(Sketcher.Constraint("PointOnObject", 44, 2, -2))
sketch5.addConstraint(Sketcher.Constraint("PointOnObject", 55, 2, -1))
sketch5.addConstraint(Sketcher.Constraint("PointOnObject", 58, 2, -2))
sketch5.addConstraint(Sketcher.Constraint("Horizontal", 7, 2, 10, 2))
sketch5.addConstraint(Sketcher.Constraint("Horizontal", 5, 2, 15, 2))
sketch5.addConstraint(Sketcher.Constraint("Horizontal", 18, 2, 28, 2))
sketch5.addConstraint(Sketcher.Constraint("Horizontal", 27, 2, 31, 2))
sketch5.addConstraint(Sketcher.Constraint("Horizontal", 34, 2, 43, 2))
sketch5.addConstraint(Sketcher.Constraint("Horizontal", 42, 2, 47, 2))
sketch5.addConstraint(Sketcher.Constraint("Horizontal", 50, 2, 57, 2))
sketch5.addConstraint(Sketcher.Constraint("Vertical", 12, 2, 14, 2))
sketch5.addConstraint(Sketcher.Constraint("Vertical", 10, 2, 16, 2))
sketch5.addConstraint(Sketcher.Constraint("Vertical", 15, 2, 18, 2))
sketch5.addConstraint(Sketcher.Constraint("Vertical", 13, 2, 20, 2))
sketch5.addConstraint(Sketcher.Constraint("Vertical", 2, 2, 23, 2))
sketch5.addConstraint(Sketcher.Constraint("Vertical", 6, 2, 27, 2))
sketch5.addConstraint(Sketcher.Constraint("Vertical", 19, 2, 30, 2))
sketch5.addConstraint(Sketcher.Constraint("Vertical", 17, 2, 32, 2))
sketch5.addConstraint(Sketcher.Constraint("Vertical", 31, 2, 34, 2))
sketch5.addConstraint(Sketcher.Constraint("Vertical", 21, 2, 36, 2))
sketch5.addConstraint(Sketcher.Constraint("Vertical", 24, 2, 38, 2))
sketch5.addConstraint(Sketcher.Constraint("Vertical", 28, 2, 42, 2))
sketch5.addConstraint(Sketcher.Constraint("Vertical", 35, 2, 46, 2))
sketch5.addConstraint(Sketcher.Constraint("Vertical", 33, 2, 48, 2))
sketch5.addConstraint(Sketcher.Constraint("Vertical", 47, 2, 50, 2))
sketch5.addConstraint(Sketcher.Constraint("Vertical", 37, 2, 52, 2))
sketch5.addConstraint(Sketcher.Constraint("Vertical", 39, 2, 54, 2))
sketch5.addConstraint(Sketcher.Constraint("Vertical", 43, 2, 56, 2))
sketch5.addConstraint(Sketcher.Constraint("Equal", 7, 11))
sketch5.addConstraint(Sketcher.Constraint("Equal", 3, 13))
sketch5.addConstraint(Sketcher.Constraint("Equal", 56, 0))
sketch5.addConstraint(Sketcher.Constraint("Equal", 0, 4))
sketch5.addConstraint(Sketcher.Constraint("Equal", 4, 12))
sketch5.addConstraint(Sketcher.Constraint("Equal", 12, 15))
sketch5.addConstraint(Sketcher.Constraint("Equal", 6, 17))
sketch5.addConstraint(Sketcher.Constraint("Equal", 15, 19))
sketch5.addConstraint(Sketcher.Constraint("Equal", 19, 22))
sketch5.addConstraint(Sketcher.Constraint("Equal", 21, 24))
sketch5.addConstraint(Sketcher.Constraint("Equal", 22, 26))
sketch5.addConstraint(Sketcher.Constraint("Equal", 26, 31))
sketch5.addConstraint(Sketcher.Constraint("Equal", 28, 33))
sketch5.addConstraint(Sketcher.Constraint("Equal", 31, 35))
sketch5.addConstraint(Sketcher.Constraint("Equal", 37, 39))
sketch5.addConstraint(Sketcher.Constraint("Equal", 35, 41))
sketch5.addConstraint(Sketcher.Constraint("Equal", 33, 43))
sketch5.addConstraint(Sketcher.Constraint("Equal", 45, 47))
sketch5.addConstraint(Sketcher.Constraint("Equal", 43, 49))
sketch5.addConstraint(Sketcher.Constraint("Equal", 47, 51))
sketch5.addConstraint(Sketcher.Constraint("Equal", 49, 57))
sketch5.addConstraint(Sketcher.Constraint("Equal", 51, 59))
sketch5.addConstraint(Sketcher.Constraint("DistanceX", 9, 1, 9, 2, 0.1))
sketch5.addConstraint(Sketcher.Constraint("DistanceX", 5, 1, 5, 2, 2.0))
sketch5.addConstraint(Sketcher.Constraint("DistanceY", 6, 1, 6, 2, 25.0))
sketch5.addConstraint(Sketcher.Constraint("DistanceY", 10, 2, 10, 1, 23.0))
sketch5.addConstraint(Sketcher.Constraint("DistanceX", -1, 1, 9, 2, 198.0))
pocket3 = doc.addObject("PartDesign::Pocket", "Pocket002")
body.addObject(pocket3)
pocket3.Profile = sketch5
pocket3.Length = 2
pocket3.Reversed = True

doc.recompute()
